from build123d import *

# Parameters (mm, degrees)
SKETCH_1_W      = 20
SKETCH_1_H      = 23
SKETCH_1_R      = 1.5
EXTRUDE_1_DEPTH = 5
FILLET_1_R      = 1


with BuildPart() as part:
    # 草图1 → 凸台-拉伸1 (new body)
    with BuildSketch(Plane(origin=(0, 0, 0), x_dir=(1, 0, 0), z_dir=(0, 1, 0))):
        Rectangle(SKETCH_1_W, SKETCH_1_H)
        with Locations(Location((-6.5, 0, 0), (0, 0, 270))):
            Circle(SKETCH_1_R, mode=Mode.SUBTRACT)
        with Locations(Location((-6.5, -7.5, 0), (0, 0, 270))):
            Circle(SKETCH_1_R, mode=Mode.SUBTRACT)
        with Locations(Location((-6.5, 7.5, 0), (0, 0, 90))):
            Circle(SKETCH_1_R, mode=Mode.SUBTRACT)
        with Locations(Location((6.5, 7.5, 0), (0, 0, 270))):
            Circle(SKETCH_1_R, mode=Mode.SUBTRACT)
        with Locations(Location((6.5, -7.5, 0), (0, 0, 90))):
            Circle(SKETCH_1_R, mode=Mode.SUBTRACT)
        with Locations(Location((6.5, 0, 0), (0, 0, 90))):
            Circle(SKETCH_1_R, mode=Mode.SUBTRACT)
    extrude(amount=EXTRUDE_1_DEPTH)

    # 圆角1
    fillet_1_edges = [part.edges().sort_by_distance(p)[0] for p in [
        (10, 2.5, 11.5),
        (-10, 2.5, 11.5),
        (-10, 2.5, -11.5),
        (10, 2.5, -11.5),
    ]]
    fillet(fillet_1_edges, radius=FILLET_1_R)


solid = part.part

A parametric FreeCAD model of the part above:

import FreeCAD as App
import Part
import Sketcher


def edges_at(feature, points):
    """Names of the edges that pass closest to the given points."""
    edges = feature.Shape.Edges
    near = lambda p: min(range(len(edges)), key=lambda i: edges[i].distToShape(Part.Vertex(*p))[0])
    return sorted({f"Edge{near(p) + 1}" for p in points})

doc = App.newDocument("Part")
body = doc.addObject("PartDesign::Body", "Body")

sketch1 = body.newObject("Sketcher::SketchObject", "Sketch")
sketch1.AttachmentSupport = (doc.getObject("XZ_Plane"), [""])
sketch1.MapMode = "FlatFace"
sketch1.addGeometry(Part.LineSegment(App.Vector(-10, -11.5, 0), App.Vector(-10, 11.5, 0)), False)
sketch1.addGeometry(Part.LineSegment(App.Vector(-10, 11.5, 0), App.Vector(10, 11.5, 0)), False)
sketch1.addGeometry(Part.LineSegment(App.Vector(10, 11.5, 0), App.Vector(10, -11.5, 0)), False)
sketch1.addGeometry(Part.LineSegment(App.Vector(10, -11.5, 0), App.Vector(-10, -11.5, 0)), False)
sketch1.addGeometry(Part.Circle(App.Vector(-6.5, 7.5, 0), App.Vector(0, 0, 1), 1.5), False)
sketch1.addGeometry(Part.Circle(App.Vector(6.5, 7.5, 0), App.Vector(0, 0, 1), 1.5), False)
sketch1.addGeometry(Part.Circle(App.Vector(-6.5, 0, 0), App.Vector(0, 0, 1), 1.5), False)
sketch1.addGeometry(Part.Circle(App.Vector(-6.5, -7.5, 0), App.Vector(0, 0, 1), 1.5), False)
sketch1.addGeometry(Part.Circle(App.Vector(6.5, 0, 0), App.Vector(0, 0, 1), 1.5), False)
sketch1.addGeometry(Part.Circle(App.Vector(6.5, -7.5, 0), App.Vector(0, 0, 1), 1.5), False)
sketch1.addConstraint(Sketcher.Constraint("Coincident", 0, 2, 1, 1))
sketch1.addConstraint(Sketcher.Constraint("Coincident", 1, 2, 2, 1))
sketch1.addConstraint(Sketcher.Constraint("Coincident", 2, 2, 3, 1))
sketch1.addConstraint(Sketcher.Constraint("Coincident", 3, 2, 0, 1))
sketch1.addConstraint(Sketcher.Constraint("Vertical", 0))
sketch1.addConstraint(Sketcher.Constraint("Horizontal", 1))
sketch1.addConstraint(Sketcher.Constraint("Vertical", 2))
sketch1.addConstraint(Sketcher.Constraint("Horizontal", 3))
sketch1.addConstraint(Sketcher.Constraint("Equal", 4, 5))
sketch1.addConstraint(Sketcher.Constraint("Equal", 5, 6))
sketch1.addConstraint(Sketcher.Constraint("Equal", 6, 7))
sketch1.addConstraint(Sketcher.Constraint("Equal", 7, 8))
sketch1.addConstraint(Sketcher.Constraint("Equal", 8, 9))
sketch1.addConstraint(Sketcher.Constraint("Symmetric", 5, 3, 7, 3, -1, 1))
sketch1.addConstraint(Sketcher.Constraint("Symmetric", 6, 3, 8, 3, -1, 1))
sketch1.addConstraint(Sketcher.Constraint("Symmetric", 4, 3, 9, 3, -1, 1))
sketch1.addConstraint(Sketcher.Constraint("Symmetric", 0, 2, 2, 2, -1, 1))
sketch1.addConstraint(Sketcher.Constraint("Symmetric", 4, 3, 5, 3, -2))
sketch1.addConstraint(Sketcher.Constraint("PointOnObject", 6, 3, -1))
sketch1.addConstraint(Sketcher.Constraint("Vertical", 4, 3, 6, 3))
sketch1.addConstraint(Sketcher.Constraint("Diameter", 4, 3.0))
sketch1.addConstraint(Sketcher.Constraint("DistanceX", 1, 1, 1, 2, 20.0))
sketch1.addConstraint(Sketcher.Constraint("DistanceY", 0, 1, 0, 2, 23.0))
sketch1.addConstraint(Sketcher.Constraint("DistanceX", 4, 3, 5, 3, 13.0))
sketch1.addConstraint(Sketcher.Constraint("DistanceY", 7, 3, 4, 3, 15.0))
pad1 = body.newObject("PartDesign::Pad", "Pad")
pad1.Profile = sketch1
pad1.Length = 5
pad1.Reversed = True
doc.recompute()

fillet = body.newObject("PartDesign::Fillet", "Fillet")
fillet.Base = (pad1, edges_at(pad1, [
    (10, 2.5, 11.5),
    (-10, 2.5, 11.5),
    (-10, 2.5, -11.5),
    (10, 2.5, -11.5),
]))
fillet.Radius = 1

doc.recompute()
